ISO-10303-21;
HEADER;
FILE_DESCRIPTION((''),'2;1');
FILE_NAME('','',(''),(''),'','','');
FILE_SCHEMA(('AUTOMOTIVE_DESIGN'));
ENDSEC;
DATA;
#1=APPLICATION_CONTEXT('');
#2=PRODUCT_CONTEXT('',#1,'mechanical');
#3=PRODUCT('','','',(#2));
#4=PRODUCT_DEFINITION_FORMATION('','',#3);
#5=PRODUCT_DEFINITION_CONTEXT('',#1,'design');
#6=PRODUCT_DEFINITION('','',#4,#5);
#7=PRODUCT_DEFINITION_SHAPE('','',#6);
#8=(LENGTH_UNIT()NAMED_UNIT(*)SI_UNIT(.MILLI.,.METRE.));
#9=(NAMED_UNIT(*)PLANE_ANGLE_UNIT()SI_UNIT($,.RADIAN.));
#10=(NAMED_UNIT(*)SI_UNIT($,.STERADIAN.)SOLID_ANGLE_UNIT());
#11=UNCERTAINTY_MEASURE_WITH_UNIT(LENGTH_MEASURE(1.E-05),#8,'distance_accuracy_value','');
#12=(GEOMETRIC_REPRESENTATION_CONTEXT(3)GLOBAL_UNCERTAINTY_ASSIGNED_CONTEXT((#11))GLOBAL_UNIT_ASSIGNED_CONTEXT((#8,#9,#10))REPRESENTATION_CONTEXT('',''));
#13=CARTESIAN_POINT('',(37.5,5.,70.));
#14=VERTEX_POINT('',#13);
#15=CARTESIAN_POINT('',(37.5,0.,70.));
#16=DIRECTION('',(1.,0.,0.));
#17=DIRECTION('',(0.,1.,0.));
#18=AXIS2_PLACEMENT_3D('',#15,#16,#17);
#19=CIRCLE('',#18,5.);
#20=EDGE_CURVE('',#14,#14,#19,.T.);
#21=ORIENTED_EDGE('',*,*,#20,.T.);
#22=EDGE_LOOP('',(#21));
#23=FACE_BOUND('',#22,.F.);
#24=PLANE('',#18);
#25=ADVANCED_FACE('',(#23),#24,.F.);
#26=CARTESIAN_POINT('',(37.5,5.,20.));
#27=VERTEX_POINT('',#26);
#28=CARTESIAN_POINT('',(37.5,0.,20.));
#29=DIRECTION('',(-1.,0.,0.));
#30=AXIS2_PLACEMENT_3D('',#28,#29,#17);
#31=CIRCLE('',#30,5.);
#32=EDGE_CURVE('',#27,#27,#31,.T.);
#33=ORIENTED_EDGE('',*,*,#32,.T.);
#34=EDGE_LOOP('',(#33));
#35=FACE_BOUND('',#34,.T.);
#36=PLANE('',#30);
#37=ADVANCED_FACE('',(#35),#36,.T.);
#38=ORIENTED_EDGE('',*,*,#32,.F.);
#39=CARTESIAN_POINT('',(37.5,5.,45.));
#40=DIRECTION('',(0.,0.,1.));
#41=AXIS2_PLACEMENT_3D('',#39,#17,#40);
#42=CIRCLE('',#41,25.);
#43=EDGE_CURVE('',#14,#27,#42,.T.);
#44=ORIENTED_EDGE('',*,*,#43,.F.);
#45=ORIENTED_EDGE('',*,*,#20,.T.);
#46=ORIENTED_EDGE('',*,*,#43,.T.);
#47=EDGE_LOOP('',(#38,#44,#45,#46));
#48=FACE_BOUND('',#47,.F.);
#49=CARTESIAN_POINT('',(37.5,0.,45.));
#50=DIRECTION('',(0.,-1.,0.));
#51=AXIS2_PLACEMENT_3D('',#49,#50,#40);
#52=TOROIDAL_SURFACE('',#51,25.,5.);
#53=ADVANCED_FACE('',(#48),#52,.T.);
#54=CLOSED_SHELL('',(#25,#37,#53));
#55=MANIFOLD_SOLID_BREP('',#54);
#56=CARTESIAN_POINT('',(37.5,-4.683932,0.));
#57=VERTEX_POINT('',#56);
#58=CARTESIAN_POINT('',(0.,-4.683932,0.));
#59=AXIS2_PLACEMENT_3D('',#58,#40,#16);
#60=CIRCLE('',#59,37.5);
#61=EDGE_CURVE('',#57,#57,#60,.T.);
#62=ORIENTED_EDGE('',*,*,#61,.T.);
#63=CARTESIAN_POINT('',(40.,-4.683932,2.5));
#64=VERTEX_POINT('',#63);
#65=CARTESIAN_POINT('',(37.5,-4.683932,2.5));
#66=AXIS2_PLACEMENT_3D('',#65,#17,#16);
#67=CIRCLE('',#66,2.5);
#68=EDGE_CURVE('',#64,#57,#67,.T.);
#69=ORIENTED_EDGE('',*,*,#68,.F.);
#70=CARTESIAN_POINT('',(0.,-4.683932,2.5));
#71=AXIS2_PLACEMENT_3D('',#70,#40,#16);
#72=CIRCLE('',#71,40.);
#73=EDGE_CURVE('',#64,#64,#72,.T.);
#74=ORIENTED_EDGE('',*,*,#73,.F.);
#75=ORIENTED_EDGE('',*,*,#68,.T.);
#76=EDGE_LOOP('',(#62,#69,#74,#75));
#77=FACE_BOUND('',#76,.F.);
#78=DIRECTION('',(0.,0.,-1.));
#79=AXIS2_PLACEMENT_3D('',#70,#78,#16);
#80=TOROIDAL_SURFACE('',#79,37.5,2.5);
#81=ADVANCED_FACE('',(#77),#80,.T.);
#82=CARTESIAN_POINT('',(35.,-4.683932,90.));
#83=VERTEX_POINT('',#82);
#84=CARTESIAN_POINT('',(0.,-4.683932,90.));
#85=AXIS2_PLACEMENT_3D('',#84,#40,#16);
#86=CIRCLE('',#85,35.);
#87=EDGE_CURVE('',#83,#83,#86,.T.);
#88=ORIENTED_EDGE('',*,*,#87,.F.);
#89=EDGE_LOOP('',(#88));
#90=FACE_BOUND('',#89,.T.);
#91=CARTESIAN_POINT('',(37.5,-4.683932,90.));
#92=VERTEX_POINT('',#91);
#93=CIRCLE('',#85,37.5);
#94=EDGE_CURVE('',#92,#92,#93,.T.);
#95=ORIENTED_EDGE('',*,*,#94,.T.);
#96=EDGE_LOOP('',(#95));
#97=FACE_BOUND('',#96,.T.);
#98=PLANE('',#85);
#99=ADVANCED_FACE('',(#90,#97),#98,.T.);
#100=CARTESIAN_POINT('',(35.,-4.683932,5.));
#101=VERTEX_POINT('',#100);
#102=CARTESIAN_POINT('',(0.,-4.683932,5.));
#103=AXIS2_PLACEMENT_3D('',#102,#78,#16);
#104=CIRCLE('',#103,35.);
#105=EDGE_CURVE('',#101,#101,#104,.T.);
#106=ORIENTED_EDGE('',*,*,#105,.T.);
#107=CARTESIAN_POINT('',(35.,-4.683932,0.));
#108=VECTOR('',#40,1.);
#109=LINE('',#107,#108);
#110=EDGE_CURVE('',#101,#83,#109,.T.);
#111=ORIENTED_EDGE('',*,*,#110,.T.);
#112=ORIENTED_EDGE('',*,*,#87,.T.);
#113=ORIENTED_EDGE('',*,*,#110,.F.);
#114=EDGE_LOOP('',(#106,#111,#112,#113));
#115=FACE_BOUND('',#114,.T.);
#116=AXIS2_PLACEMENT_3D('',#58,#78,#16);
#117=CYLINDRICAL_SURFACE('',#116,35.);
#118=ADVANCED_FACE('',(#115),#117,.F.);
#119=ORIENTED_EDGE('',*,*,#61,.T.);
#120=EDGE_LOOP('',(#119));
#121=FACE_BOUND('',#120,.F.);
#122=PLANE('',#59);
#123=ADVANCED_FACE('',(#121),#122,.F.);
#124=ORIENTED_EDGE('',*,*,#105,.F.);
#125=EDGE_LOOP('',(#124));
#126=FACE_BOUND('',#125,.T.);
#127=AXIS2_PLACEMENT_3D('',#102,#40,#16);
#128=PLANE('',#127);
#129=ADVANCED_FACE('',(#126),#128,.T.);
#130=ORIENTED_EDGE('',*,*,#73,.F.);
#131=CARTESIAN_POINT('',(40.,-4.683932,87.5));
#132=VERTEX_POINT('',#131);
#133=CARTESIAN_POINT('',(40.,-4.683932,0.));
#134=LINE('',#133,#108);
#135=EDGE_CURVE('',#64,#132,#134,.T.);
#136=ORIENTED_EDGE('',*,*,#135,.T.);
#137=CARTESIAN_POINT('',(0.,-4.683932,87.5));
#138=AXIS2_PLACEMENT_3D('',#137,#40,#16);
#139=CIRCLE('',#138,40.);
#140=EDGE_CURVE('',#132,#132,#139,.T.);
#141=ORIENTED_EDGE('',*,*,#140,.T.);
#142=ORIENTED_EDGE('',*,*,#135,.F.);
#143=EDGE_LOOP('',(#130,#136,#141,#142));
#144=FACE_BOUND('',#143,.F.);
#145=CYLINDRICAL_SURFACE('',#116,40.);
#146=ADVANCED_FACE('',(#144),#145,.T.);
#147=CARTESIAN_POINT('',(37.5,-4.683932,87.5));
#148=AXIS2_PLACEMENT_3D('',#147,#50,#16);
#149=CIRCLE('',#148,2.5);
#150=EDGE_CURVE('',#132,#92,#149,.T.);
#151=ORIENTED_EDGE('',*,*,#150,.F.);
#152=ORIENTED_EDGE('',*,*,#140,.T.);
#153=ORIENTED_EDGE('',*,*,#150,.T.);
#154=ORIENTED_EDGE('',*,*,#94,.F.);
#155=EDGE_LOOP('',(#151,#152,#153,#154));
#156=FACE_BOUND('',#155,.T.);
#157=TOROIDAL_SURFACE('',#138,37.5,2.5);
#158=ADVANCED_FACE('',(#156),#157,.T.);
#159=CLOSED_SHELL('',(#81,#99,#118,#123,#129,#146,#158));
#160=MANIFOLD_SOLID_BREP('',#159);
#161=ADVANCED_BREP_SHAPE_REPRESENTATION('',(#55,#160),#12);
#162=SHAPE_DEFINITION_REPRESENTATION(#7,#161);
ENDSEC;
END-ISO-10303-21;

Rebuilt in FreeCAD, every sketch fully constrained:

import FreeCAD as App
import Part
import Sketcher
Q = App.Units.Quantity


def edges_at(feature, points):
    """Names of the edges that pass closest to the given points."""
    edges = feature.Shape.Edges
    near = lambda p: min(range(len(edges)), key=lambda i: edges[i].distToShape(Part.Vertex(*p))[0])
    return sorted({f"Edge{near(p) + 1}" for p in points})


def faces_at(feature, points):
    """Names of the faces that lie closest to the given points."""
    faces = feature.Shape.Faces
    near = lambda p: min(range(len(faces)), key=lambda i: faces[i].distToShape(Part.Vertex(*p))[0])
    return sorted({f"Face{near(p) + 1}" for p in points})

doc = App.newDocument("Part")
params = doc.addObject("Spreadsheet::Sheet", "Params")
for row, (alias, value) in enumerate([
    ("sketch1_diameter", "80 mm"),
    ("pad1_length", "90 mm"),
    ("thickness_wall", "5 mm"),
    ("fillet_radius", "2.5 mm"),
    ("sketch2_diameter", "10 mm"),
    ("sketch2_width", "10 mm"),
    ("revolution_angle", "180 deg"),
], start=1):
    params.set(f"A{row}", alias)
    params.set(f"B{row}", "=" + value)
    params.setAlias(f"B{row}", alias)

body = doc.addObject("PartDesign::Body", "Body")

# Sketch on XY plane
sketch1 = body.newObject("Sketcher::SketchObject", "Sketch")
sketch1.AttachmentSupport = (doc.getObject("XY_Plane"), [""])
sketch1.MapMode = "FlatFace"
sketch1.addGeometry(Part.Circle(App.Vector(0, -4.683932, 0), App.Vector(0, 0, 1), 40), False)
sketch1.addConstraint([
    Sketcher.Constraint("PointOnObject", 0, 3, -2),
    Sketcher.Constraint("Diameter", 0, Q("80 mm")),
    Sketcher.Constraint("DistanceY", 0, 3, -1, 1, Q("4.683932 mm")),
])
sketch1.setExpression("Constraints[1]", "Params.sketch1_diameter")
pad1 = body.newObject("PartDesign::Pad", "Pad")
pad1.Profile = sketch1
pad1.setExpression("Length", "Params.pad1_length")
doc.recompute()

thickness = body.newObject("PartDesign::Thickness", "Thickness")
thickness.Base = (pad1, faces_at(pad1, [(0, -4.684, 90)]))
thickness.setExpression("Value", "Params.thickness_wall")
thickness.Reversed = True
thickness.Join = "Arc"
doc.recompute()

fillet = body.newObject("PartDesign::Fillet", "Fillet")
fillet.Base = (thickness, edges_at(thickness, [(-40, -4.684, 90), (-40, -4.684, 0)]))
fillet.setExpression("Radius", "Params.fillet_radius")
body2 = doc.addObject("PartDesign::Body", "Body001")

# Sketch on YZ plane
sketch2 = body2.newObject("Sketcher::SketchObject", "Sketch001")
sketch2.AttachmentSupport = (doc.getObject("YZ_Plane001"), [""])
sketch2.MapMode = "FlatFace"
sketch2.AttachmentOffset = App.Placement(App.Vector(0, 0, 37.5), App.Rotation())
sketch2.addGeometry(Part.Circle(App.Vector(0, 70, 0), App.Vector(0, 0, 1), 5), False)
sketch2.addGeometry(Part.LineSegment(App.Vector(0, 45, 0), App.Vector(10, 45, 0)), True)  # axis
sketch2.addConstraint([
    Sketcher.Constraint("Horizontal", 1),
    Sketcher.Constraint("PointOnObject", 0, 3, -2),
    Sketcher.Constraint("PointOnObject", 1, 1, -2),
    Sketcher.Constraint("Diameter", 0, Q("10 mm")),
    Sketcher.Constraint("DistanceX", 1, 1, 1, 2, Q("10 mm")),
    Sketcher.Constraint("DistanceY", -1, 1, 0, 3, Q("70 mm")),
    Sketcher.Constraint("DistanceY", -1, 1, 1, 1, Q("45 mm")),
])
sketch2.setExpression("Constraints[3]", "Params.sketch2_diameter")
sketch2.setExpression("Constraints[4]", "Params.sketch2_width")
revolution = body2.newObject("PartDesign::Revolution", "Revolution")
revolution.Profile = sketch2
revolution.ReferenceAxis = (sketch2, ["Axis0"])
revolution.setExpression("Angle", "Params.revolution_angle")

doc.recompute()
